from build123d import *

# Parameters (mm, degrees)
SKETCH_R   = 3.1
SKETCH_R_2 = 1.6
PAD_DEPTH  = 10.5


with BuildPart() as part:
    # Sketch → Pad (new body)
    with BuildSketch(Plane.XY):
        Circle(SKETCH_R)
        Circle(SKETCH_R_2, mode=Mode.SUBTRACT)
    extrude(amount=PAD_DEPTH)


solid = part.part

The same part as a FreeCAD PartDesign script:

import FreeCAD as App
import Part
import Sketcher
from FreeCAD import Vector

doc = App.newDocument("Part")
params = doc.addObject("Spreadsheet::Sheet", "Params")
for row, (alias, value) in enumerate([
    ("sketch1_diameter", "6.2 mm"),
    ("sketch1_diameter2", "3.2 mm"),
    ("pad1_length", "10.5 mm"),
], start=1):
    params.set(f"A{row}", alias)
    params.set(f"B{row}", "=" + value)
    params.setAlias(f"B{row}", alias)

body = doc.addObject("PartDesign::Body", "Body")

sketch1 = doc.addObject("Sketcher::SketchObject", "Sketch")
body.addObject(sketch1)
sketch1.AttachmentSupport = (doc.XY_Plane, [""])
sketch1.MapMode = "FlatFace"
sketch1.addGeometry([
    Part.Circle(Vector(0, 0, 0), Vector(0, 0, 1), 3.1),
    Part.Circle(Vector(0, 0, 0), Vector(0, 0, 1), 1.6),
], False)
sketch1.addConstraint([
    Sketcher.Constraint("Coincident", 0, 3, -1, 1),
    Sketcher.Constraint("Coincident", 1, 3, -1, 1),
    Sketcher.Constraint("Diameter", 0, 6.2),
    Sketcher.Constraint("Diameter", 1, 3.2),
])
sketch1.setExpression("Constraints[2]", "Params.sketch1_diameter")
sketch1.setExpression("Constraints[3]", "Params.sketch1_diameter2")
pad1 = doc.addObject("PartDesign::Pad", "Pad")
body.addObject(pad1)
pad1.Profile = sketch1
pad1.setExpression("Length", "Params.pad1_length")

doc.recompute()
